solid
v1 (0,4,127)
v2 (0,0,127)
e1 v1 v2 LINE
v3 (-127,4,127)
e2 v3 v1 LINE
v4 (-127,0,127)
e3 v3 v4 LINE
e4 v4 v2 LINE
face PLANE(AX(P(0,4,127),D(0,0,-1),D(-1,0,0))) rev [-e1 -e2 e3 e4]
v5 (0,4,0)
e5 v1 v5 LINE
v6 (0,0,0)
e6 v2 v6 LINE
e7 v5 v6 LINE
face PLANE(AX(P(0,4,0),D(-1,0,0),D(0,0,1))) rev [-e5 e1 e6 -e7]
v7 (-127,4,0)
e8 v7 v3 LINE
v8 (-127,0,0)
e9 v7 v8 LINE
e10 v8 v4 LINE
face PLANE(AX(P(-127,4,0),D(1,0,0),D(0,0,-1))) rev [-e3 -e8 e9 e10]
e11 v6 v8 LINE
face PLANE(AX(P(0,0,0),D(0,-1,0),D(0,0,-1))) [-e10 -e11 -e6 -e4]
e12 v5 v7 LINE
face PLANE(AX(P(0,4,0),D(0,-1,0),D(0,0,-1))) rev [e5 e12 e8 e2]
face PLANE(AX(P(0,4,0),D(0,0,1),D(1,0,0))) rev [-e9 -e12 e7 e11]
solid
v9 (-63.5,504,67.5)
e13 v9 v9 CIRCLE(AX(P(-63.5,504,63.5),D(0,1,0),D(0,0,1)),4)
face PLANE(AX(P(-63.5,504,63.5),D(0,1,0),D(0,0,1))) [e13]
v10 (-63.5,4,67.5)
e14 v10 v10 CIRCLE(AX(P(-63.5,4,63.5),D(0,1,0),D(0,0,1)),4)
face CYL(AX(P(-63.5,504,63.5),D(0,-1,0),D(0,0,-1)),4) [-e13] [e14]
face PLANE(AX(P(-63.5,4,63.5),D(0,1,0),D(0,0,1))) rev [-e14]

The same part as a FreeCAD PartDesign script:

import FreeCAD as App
import Part
import Sketcher

V = App.Vector


def add_polygon(sketch, points):
    """Adds a closed chain of lines whose ends are joined by coincident constraints."""
    first, n = sketch.GeometryCount, len(points)
    for a, b in zip(points, points[1:] + points[:1]):
        sketch.addGeometry(Part.LineSegment(App.Vector(*a, 0), App.Vector(*b, 0)), False)
    for i in range(n):
        sketch.addConstraint(Sketcher.Constraint("Coincident", first + i, 2, first + (i + 1) % n, 1))

doc = App.newDocument("Part")
body = doc.addObject("PartDesign::Body", "Body")

# Sketch on XZ plane
sketch1 = body.newObject("Sketcher::SketchObject", "Sketch")
sketch1.AttachmentSupport = (doc.getObject("XZ_Plane"), [""])
sketch1.MapMode = "FlatFace"
add_polygon(sketch1, [(-127, 0), (-127, 127), (0, 127), (0, 0)])  # lines 0-3
sketch1.addConstraint([
    Sketcher.Constraint("Vertical", 0),
    Sketcher.Constraint("Horizontal", 1),
    Sketcher.Constraint("Vertical", 2),
    Sketcher.Constraint("Horizontal", 3),
    Sketcher.Constraint("Coincident", 2, 2, -1, 1),
    Sketcher.Constraint("Equal", 3, 0),
    Sketcher.Constraint("DistanceX", 1, 1, 1, 2, 127.0),
])
pad1 = body.newObject("PartDesign::Pad", "Pad")
pad1.Profile = sketch1
pad1.Length = 4
pad1.Reversed = True
body2 = doc.addObject("PartDesign::Body", "Body001")

# Sketch on XZ plane
sketch2 = body2.newObject("Sketcher::SketchObject", "Sketch001")
sketch2.AttachmentSupport = (doc.getObject("XZ_Plane001"), [""])
sketch2.MapMode = "FlatFace"
sketch2.AttachmentOffset = App.Placement(V(0, 0, -4), App.Rotation())
sketch2.addGeometry(Part.Circle(V(-63.5, 63.5, 0), V(0, 0, 1), 4), False)
sketch2.addConstraint([
    Sketcher.Constraint("Diameter", 0, 8.0),
    Sketcher.Constraint("DistanceX", 0, 3, -1, 1, 63.5),
    Sketcher.Constraint("DistanceY", -1, 1, 0, 3, 63.5),
])
pad2 = body2.newObject("PartDesign::Pad", "Pad001")
pad2.Profile = sketch2
pad2.Length = 500
pad2.Reversed = True

doc.recompute()
